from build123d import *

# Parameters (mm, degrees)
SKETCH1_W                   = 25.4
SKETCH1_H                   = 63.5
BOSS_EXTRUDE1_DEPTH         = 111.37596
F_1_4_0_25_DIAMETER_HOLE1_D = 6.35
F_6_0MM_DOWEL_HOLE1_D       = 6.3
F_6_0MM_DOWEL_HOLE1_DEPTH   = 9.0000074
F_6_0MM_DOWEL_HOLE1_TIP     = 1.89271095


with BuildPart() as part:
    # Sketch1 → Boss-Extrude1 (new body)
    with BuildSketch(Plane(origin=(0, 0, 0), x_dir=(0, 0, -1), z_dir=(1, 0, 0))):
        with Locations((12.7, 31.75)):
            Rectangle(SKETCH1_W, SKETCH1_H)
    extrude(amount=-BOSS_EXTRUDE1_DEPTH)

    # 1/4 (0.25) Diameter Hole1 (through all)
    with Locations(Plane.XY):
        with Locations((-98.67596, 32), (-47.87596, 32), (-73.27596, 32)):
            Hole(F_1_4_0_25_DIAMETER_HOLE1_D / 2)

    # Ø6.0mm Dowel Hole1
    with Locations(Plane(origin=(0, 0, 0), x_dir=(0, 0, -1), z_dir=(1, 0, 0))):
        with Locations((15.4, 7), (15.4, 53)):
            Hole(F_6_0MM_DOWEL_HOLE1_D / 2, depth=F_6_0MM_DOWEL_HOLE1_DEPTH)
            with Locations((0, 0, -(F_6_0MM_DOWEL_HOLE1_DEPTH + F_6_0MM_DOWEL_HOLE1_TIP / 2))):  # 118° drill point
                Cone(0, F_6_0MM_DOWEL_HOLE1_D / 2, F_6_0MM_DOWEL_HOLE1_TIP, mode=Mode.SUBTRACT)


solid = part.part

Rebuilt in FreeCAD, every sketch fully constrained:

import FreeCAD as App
import Part
import Sketcher
from FreeCAD import Vector
Q = App.Units.Quantity

doc = App.newDocument("Part")
body = doc.addObject("PartDesign::Body", "Body")

# Sketch on YZ plane
sketch1 = doc.addObject("Sketcher::SketchObject", "Sketch")
body.addObject(sketch1)
sketch1.AttachmentSupport = (doc.YZ_Plane, [""])
sketch1.MapMode = "FlatFace"
sketch1.addGeometry([
    Part.LineSegment(Vector(64, 0, 0), Vector(0, 0, 0)),
    Part.LineSegment(Vector(0, 0, 0), Vector(0, -25, 0)),
    Part.LineSegment(Vector(0, -25, 0), Vector(64, -25, 0)),
    Part.LineSegment(Vector(64, -25, 0), Vector(64, 0, 0)),
], False)
sketch1.addConstraint([
    Sketcher.Constraint("Coincident", 0, 2, 1, 1),
    Sketcher.Constraint("Coincident", 1, 2, 2, 1),
    Sketcher.Constraint("Coincident", 2, 2, 3, 1),
    Sketcher.Constraint("Coincident", 3, 2, 0, 1),
    Sketcher.Constraint("Horizontal", 0),
    Sketcher.Constraint("Vertical", 1),
    Sketcher.Constraint("Horizontal", 2),
    Sketcher.Constraint("Vertical", 3),
    Sketcher.Constraint("Coincident", 0, 2, -1, 1),
    Sketcher.Constraint("DistanceY", 1, 2, 1, 1, Q("1 in")),
    Sketcher.Constraint("DistanceX", 0, 2, 0, 1, Q("2.5 in")),
])
pad1 = doc.addObject("PartDesign::Pad", "Pad")
body.addObject(pad1)
pad1.Profile = sketch1
pad1.Length = 111.37596
pad1.Reversed = True

# Sketch on XY plane
sketch2 = doc.addObject("Sketcher::SketchObject", "Sketch001")
body.addObject(sketch2)
sketch2.AttachmentSupport = (doc.XY_Plane, [""])
sketch2.MapMode = "FlatFace"
sketch2.addGeometry([
    Part.Circle(Vector(-98.7, 32, 0), Vector(0, 0, 1), 3.2),
    Part.Circle(Vector(-47.9, 32, 0), Vector(0, 0, 1), 3.2),
    Part.Circle(Vector(-73.3, 32, 0), Vector(0, 0, 1), 3.2),
], False)
sketch2.addConstraint([
    Sketcher.Constraint("Equal", 0, 1),
    Sketcher.Constraint("Equal", 1, 2),
    Sketcher.Constraint("Horizontal", 0, 3, 1, 3),
    Sketcher.Constraint("Horizontal", 1, 3, 2, 3),
    Sketcher.Constraint("Diameter", 0, Q("0.25 in")),
    Sketcher.Constraint("DistanceX", 0, 3, 1, 3, Q("2 in")),
    Sketcher.Constraint("DistanceX", 2, 3, 1, 3, Q("1 in")),
    Sketcher.Constraint("DistanceY", -1, 1, 0, 3, 32.0),
    Sketcher.Constraint("DistanceX", 0, 3, -1, 1, 98.67596),
])
doc.recompute()
hole = doc.addObject("PartDesign::Hole", "Hole")
body.addObject(hole)
hole.Profile = sketch2
hole.ThreadType = "None"
hole.Diameter = Q("0.25 in")
hole.DepthType = "ThroughAll"

# Sketch on YZ plane
sketch3 = doc.addObject("Sketcher::SketchObject", "Sketch002")
body.addObject(sketch3)
sketch3.AttachmentSupport = (doc.YZ_Plane, [""])
sketch3.MapMode = "FlatFace"
sketch3.addGeometry([
    Part.Circle(Vector(7, -15.4, 0), Vector(0, 0, 1), 3.1),
    Part.Circle(Vector(53, -15.4, 0), Vector(0, 0, 1), 3.1),
], False)
sketch3.addConstraint([
    Sketcher.Constraint("Equal", 0, 1),
    Sketcher.Constraint("Horizontal", 0, 3, 1, 3),
    Sketcher.Constraint("Diameter", 0, 6.3),
    Sketcher.Constraint("DistanceX", -1, 1, 0, 3, 7.0),
    Sketcher.Constraint("DistanceY", 0, 3, -1, 1, 15.4),
    Sketcher.Constraint("DistanceX", -1, 1, 1, 3, 53.0),
])
doc.recompute()
hole2 = doc.addObject("PartDesign::Hole", "Hole001")
body.addObject(hole2)
hole2.Profile = sketch3
hole2.ThreadType = "None"
hole2.Diameter = 6.3
hole2.DepthType = "Dimension"
hole2.Depth = 9.000007
hole2.DrillPoint = "Angled"
hole2.DrillPointAngle = 118

doc.recompute()
